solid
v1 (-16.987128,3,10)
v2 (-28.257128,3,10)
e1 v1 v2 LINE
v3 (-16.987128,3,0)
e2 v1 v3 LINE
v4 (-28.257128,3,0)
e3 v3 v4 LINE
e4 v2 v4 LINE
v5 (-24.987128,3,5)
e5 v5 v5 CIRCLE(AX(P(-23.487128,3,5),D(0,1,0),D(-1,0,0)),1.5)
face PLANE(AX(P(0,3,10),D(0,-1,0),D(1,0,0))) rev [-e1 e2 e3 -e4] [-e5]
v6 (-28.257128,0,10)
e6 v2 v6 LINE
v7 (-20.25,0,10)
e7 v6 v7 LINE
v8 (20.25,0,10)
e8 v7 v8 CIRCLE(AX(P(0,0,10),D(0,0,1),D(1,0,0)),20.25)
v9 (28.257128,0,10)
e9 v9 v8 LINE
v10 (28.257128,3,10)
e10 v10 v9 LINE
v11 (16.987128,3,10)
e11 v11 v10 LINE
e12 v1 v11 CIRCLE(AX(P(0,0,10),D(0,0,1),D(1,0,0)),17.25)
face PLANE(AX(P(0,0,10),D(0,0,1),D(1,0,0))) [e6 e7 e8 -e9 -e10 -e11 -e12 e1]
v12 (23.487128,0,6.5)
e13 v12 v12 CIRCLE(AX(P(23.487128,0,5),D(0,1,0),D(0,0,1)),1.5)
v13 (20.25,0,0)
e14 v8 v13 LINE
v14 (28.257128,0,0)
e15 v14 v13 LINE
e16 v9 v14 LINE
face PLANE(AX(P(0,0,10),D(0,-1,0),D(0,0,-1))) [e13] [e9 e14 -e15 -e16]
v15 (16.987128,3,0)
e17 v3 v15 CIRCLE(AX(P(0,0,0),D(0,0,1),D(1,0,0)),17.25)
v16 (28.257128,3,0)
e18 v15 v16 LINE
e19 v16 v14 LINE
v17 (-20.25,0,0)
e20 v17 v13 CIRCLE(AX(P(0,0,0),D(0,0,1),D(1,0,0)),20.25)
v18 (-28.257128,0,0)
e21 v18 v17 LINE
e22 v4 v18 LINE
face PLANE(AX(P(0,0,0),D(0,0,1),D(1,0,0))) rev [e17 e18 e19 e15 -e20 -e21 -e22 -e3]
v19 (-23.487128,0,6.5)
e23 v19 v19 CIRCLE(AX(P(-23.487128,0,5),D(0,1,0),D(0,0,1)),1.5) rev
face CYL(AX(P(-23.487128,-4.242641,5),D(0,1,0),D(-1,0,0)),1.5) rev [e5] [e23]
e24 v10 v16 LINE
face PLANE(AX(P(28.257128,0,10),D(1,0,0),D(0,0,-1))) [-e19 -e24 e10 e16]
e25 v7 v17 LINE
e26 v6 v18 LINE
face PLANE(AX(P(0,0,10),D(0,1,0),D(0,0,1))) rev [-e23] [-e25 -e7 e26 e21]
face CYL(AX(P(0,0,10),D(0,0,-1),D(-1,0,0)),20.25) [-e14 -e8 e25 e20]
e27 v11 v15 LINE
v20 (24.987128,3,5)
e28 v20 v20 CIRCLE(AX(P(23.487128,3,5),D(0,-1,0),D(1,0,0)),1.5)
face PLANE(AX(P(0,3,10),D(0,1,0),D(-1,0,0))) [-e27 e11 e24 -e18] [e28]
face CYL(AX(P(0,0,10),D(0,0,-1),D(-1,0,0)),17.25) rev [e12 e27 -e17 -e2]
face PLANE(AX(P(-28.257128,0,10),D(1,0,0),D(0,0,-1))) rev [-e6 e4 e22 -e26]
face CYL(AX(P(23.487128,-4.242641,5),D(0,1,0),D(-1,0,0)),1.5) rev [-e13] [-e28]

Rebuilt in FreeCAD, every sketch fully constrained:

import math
import FreeCAD as App
import Part
import Sketcher
from FreeCAD import Vector

doc = App.newDocument("Part")
body = doc.addObject("PartDesign::Body", "Body")

# Sketch on XY plane
sketch1 = body.newObject("Sketcher::SketchObject", "Sketch")
sketch1.AttachmentSupport = (doc.getObject("XY_Plane"), [""])
sketch1.MapMode = "FlatFace"
sketch1.addGeometry([
    Part.ArcOfCircle(Part.Circle(Vector(0, 0, 0), Vector(0, 0, 1), 17.3), math.radians(170), math.radians(360)),  # 0
    Part.LineSegment(Vector(-17, 3, 0), Vector(-28.3, 3, 0)),  # 1
    Part.LineSegment(Vector(-28.3, 3, 0), Vector(-28.3, 0, 0)),  # 2
    Part.LineSegment(Vector(-28.3, 0, 0), Vector(-20.3, 0, 0)),  # 3
    Part.ArcOfCircle(Part.Circle(Vector(0, 0, 0), Vector(0, 0, 1), 20.3), math.radians(180), math.radians(360)),  # 4
    Part.LineSegment(Vector(20.3, 0, 0), Vector(28.3, 0, 0)),  # 5
    Part.LineSegment(Vector(28.3, 0, 0), Vector(28.3, 3, 0)),  # 6
    Part.LineSegment(Vector(28.3, 3, 0), Vector(17, 3, 0)),  # 7
    Part.ArcOfCircle(Part.Circle(Vector(0, 0, 0), Vector(0, 0, 1), 17.3), math.radians(0), math.radians(10.02)),  # 8
], False)
sketch1.addConstraint([
    Sketcher.Constraint("Coincident", 0, 1, 1, 1),
    Sketcher.Constraint("Coincident", 1, 2, 2, 1),
    Sketcher.Constraint("Coincident", 2, 2, 3, 1),
    Sketcher.Constraint("Coincident", 3, 2, 4, 1),
    Sketcher.Constraint("Coincident", 4, 2, 5, 1),
    Sketcher.Constraint("Coincident", 5, 2, 6, 1),
    Sketcher.Constraint("Coincident", 6, 2, 7, 1),
    Sketcher.Constraint("Coincident", 7, 2, 8, 2),
    Sketcher.Constraint("Tangent", 8, 1, 0, 2),
    Sketcher.Constraint("Horizontal", 1),
    Sketcher.Constraint("Vertical", 2),
    Sketcher.Constraint("Horizontal", 3),
    Sketcher.Constraint("Horizontal", 5),
    Sketcher.Constraint("Vertical", 6),
    Sketcher.Constraint("Horizontal", 7),
    Sketcher.Constraint("Coincident", 0, 3, -1, 1),
    Sketcher.Constraint("Coincident", 4, 3, -1, 1),
    Sketcher.Constraint("Equal", 0, 8),
    Sketcher.Constraint("Symmetric", 2, 2, 5, 2, -1, 1),
    Sketcher.Constraint("PointOnObject", 2, 2, -1),
    Sketcher.Constraint("PointOnObject", 8, 1, -1),
    Sketcher.Constraint("Horizontal", 1, 2, 6, 2),
    Sketcher.Constraint("DistanceY", 2, 2, 2, 1, 3.0),
    Sketcher.Constraint("Radius", 0, 17.25),
    Sketcher.Constraint("Radius", 4, 20.25),
    Sketcher.Constraint("DistanceX", 1, 2, 1, 1, 11.27),
])
pad1 = body.newObject("PartDesign::Pad", "Pad")
pad1.Profile = sketch1
pad1.Length = 10

# Sketch on XZ plane
sketch2 = body.newObject("Sketcher::SketchObject", "Sketch001")
sketch2.AttachmentSupport = (doc.getObject("XZ_Plane"), [""])
sketch2.MapMode = "FlatFace"
sketch2.AttachmentOffset = App.Placement(Vector(0, 0, -3), App.Rotation())
sketch2.addGeometry(Part.Circle(Vector(-23.5, 5, 0), Vector(0, 0, 1), 1.5), False)
sketch2.addConstraint([
    Sketcher.Constraint("Diameter", 0, 3.0),
    Sketcher.Constraint("DistanceY", -1, 1, 0, 3, 5.0),
    Sketcher.Constraint("DistanceX", 0, 3, -1, 1, 23.487128),
])
pocket1 = body.newObject("PartDesign::Pocket", "Pocket")
pocket1.Profile = sketch2
pocket1.Length = 3
pocket1.Reversed = True
doc.recompute()

mirrored = body.newObject("PartDesign::Mirrored", "Mirrored")
mirrored.Originals = [pocket1]
mirrored.MirrorPlane = (doc.getObject("YZ_Plane"), [""])
body.Tip = mirrored

doc.recompute()
